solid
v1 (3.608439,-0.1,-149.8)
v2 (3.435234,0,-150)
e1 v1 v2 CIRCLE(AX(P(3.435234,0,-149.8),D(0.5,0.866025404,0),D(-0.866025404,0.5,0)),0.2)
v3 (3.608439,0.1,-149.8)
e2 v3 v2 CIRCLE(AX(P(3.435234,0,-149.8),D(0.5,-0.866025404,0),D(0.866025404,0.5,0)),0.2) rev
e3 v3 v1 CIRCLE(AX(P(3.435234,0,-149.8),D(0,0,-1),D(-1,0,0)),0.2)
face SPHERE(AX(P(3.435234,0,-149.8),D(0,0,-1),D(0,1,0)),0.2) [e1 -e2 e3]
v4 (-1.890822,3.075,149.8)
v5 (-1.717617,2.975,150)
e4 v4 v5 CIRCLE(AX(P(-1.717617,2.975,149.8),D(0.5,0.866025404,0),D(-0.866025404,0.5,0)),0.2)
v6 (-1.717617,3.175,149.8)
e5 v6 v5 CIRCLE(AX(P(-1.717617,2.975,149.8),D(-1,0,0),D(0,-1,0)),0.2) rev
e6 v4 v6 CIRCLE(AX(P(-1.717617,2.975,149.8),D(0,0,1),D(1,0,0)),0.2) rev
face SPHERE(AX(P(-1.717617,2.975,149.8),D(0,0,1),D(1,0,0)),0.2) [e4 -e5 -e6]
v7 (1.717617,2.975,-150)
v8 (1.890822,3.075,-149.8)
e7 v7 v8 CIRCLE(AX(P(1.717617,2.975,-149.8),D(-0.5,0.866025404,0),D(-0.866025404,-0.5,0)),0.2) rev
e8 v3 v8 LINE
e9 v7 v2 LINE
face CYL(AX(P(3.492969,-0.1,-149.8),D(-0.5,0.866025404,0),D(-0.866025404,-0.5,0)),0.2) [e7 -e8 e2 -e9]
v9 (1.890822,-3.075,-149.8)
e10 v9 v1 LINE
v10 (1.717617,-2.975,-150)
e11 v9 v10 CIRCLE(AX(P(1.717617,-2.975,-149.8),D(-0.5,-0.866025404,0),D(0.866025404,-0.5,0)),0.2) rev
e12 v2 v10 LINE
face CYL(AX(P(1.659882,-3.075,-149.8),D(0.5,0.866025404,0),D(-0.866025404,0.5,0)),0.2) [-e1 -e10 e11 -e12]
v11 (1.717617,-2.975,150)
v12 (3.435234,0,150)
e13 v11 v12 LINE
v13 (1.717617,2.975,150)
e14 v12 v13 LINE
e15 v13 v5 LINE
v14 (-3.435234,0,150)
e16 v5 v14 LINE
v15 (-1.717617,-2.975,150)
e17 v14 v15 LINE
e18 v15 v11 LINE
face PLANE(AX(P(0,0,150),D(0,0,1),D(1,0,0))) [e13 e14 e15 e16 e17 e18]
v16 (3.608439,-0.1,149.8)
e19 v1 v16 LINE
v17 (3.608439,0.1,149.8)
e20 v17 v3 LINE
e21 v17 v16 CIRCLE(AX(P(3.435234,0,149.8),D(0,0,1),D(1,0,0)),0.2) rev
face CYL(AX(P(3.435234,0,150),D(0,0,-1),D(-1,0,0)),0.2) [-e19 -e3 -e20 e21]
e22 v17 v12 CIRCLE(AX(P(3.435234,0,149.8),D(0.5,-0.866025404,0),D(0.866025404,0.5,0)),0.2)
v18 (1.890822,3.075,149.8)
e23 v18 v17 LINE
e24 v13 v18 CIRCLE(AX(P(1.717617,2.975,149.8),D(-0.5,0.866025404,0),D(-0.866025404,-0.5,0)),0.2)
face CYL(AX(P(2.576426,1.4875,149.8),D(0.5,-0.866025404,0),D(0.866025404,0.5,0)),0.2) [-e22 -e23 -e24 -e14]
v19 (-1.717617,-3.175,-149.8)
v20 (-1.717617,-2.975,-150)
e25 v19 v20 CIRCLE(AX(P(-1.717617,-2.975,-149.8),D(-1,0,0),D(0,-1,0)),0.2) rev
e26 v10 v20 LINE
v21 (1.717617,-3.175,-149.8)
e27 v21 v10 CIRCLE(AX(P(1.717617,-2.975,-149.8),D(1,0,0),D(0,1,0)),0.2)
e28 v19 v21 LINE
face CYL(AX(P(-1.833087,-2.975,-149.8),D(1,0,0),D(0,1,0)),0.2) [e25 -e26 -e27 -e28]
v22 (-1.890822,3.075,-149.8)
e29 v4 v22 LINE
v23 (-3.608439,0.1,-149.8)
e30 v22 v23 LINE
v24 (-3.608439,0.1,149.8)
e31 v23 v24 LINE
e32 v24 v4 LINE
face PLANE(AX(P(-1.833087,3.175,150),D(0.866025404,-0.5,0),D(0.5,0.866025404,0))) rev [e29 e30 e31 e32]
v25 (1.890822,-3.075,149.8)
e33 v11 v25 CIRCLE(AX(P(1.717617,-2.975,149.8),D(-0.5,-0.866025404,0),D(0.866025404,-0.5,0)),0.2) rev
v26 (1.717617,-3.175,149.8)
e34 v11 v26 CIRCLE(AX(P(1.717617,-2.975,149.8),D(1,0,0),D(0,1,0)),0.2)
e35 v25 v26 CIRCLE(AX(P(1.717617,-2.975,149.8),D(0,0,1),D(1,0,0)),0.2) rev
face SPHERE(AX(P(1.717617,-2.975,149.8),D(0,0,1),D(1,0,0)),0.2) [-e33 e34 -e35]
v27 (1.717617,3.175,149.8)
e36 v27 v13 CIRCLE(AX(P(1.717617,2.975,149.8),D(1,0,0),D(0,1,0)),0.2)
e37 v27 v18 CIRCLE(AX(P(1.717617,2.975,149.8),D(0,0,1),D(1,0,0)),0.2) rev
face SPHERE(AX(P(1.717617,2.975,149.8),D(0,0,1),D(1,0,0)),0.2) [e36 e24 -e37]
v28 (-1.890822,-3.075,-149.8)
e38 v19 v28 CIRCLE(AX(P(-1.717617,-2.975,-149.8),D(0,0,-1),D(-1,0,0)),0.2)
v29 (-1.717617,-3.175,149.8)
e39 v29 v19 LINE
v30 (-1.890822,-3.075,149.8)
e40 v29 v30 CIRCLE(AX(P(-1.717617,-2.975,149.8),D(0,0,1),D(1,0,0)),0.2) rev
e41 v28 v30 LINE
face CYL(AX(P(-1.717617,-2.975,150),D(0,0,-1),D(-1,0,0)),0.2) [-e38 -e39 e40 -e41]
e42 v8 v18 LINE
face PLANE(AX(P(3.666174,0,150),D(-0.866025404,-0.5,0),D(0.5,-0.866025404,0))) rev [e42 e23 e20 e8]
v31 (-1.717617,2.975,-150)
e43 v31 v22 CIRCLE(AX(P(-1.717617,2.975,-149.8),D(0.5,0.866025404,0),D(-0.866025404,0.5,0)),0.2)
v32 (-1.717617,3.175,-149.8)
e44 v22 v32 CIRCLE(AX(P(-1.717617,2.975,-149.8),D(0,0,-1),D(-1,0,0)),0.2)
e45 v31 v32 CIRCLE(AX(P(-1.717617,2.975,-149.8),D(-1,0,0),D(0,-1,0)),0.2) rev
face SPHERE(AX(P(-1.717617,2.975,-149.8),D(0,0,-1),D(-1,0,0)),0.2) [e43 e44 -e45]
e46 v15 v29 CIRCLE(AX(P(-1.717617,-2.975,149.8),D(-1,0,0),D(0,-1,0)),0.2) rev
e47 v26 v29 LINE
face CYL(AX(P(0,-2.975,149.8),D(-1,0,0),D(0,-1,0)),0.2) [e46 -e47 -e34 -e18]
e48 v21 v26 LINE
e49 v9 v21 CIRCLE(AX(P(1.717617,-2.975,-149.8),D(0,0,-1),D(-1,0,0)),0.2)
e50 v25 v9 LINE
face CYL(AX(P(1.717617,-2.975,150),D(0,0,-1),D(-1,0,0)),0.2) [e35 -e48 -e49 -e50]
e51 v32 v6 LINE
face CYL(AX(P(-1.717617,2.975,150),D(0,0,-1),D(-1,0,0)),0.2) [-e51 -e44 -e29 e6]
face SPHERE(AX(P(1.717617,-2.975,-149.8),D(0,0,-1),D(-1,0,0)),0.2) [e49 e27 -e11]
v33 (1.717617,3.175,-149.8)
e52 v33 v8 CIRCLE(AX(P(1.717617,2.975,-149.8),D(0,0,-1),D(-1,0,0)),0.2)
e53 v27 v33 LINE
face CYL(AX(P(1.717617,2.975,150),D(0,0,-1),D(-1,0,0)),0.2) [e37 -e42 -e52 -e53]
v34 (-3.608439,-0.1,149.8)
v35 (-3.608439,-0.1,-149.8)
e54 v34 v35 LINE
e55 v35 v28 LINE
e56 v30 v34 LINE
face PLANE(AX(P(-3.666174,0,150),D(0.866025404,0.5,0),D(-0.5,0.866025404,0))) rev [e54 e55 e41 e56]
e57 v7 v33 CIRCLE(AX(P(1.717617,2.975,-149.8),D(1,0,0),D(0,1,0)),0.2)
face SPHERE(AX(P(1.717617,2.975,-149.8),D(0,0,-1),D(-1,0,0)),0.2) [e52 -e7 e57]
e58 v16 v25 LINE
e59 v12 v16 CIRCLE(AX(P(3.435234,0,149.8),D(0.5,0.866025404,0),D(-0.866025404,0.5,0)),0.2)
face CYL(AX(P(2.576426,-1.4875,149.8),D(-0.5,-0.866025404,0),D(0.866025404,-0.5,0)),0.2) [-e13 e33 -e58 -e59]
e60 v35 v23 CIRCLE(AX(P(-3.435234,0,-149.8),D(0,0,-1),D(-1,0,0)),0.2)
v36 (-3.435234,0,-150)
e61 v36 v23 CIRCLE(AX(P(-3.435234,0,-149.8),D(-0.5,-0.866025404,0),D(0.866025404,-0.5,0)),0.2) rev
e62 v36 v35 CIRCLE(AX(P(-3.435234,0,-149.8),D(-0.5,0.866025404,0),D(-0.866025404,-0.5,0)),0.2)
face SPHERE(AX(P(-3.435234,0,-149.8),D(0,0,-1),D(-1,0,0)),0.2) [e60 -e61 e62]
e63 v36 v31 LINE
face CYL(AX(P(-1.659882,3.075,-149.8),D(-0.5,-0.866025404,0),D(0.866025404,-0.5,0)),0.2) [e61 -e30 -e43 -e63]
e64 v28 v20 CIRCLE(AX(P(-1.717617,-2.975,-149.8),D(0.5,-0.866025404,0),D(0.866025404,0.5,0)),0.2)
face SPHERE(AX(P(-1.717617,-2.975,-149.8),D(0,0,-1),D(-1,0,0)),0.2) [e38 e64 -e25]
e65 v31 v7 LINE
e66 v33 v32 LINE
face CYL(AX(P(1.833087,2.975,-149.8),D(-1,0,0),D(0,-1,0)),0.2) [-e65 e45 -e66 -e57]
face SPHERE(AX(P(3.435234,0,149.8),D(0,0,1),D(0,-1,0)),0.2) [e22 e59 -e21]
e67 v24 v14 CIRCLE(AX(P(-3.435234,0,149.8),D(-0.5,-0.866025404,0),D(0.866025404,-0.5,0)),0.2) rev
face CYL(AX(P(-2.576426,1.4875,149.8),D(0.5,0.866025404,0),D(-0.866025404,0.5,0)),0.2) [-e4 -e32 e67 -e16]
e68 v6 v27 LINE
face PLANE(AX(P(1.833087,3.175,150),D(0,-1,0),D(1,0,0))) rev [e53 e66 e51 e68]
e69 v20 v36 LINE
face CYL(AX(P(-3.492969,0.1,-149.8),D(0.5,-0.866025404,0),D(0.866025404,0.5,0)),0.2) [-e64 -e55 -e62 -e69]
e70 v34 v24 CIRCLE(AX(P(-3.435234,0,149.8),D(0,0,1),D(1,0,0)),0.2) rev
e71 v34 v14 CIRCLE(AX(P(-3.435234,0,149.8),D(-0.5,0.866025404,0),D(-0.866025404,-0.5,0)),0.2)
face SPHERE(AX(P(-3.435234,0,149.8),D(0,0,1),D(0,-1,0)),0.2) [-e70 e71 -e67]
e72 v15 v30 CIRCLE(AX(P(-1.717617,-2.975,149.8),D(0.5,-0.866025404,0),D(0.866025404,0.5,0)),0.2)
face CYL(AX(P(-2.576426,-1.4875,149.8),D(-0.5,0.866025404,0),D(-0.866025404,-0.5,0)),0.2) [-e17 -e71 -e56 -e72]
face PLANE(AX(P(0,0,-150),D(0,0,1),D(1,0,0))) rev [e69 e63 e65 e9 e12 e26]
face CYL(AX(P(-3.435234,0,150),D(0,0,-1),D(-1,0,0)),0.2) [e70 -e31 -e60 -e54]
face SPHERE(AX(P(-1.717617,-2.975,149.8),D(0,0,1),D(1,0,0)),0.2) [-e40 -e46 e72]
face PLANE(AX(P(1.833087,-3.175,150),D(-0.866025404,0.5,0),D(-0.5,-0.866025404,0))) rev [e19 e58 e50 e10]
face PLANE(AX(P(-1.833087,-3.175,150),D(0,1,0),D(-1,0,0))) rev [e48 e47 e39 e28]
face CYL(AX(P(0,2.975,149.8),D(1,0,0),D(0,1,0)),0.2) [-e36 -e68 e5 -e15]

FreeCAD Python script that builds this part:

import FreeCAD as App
import Part
import Sketcher
Q = App.Units.Quantity


def add_polygon(sketch, points):
    """Adds a closed chain of lines whose ends are joined by coincident constraints."""
    first, n = sketch.GeometryCount, len(points)
    for a, b in zip(points, points[1:] + points[:1]):
        sketch.addGeometry(Part.LineSegment(App.Vector(*a, 0), App.Vector(*b, 0)), False)
    for i in range(n):
        sketch.addConstraint(Sketcher.Constraint("Coincident", first + i, 2, first + (i + 1) % n, 1))

doc = App.newDocument("Part")
body = doc.addObject("PartDesign::Body", "Body")

# Sketch on XY plane
sketch1 = doc.addObject("Sketcher::SketchObject", "Sketch")
body.addObject(sketch1)
sketch1.AttachmentSupport = (doc.XY_Plane, [""])
sketch1.MapMode = "FlatFace"
add_polygon(sketch1, [(3.666174, 0), (1.833087, 3.175), (-1.833087, 3.175), (-3.666174, 0), (-1.833087, -3.175), (1.833087, -3.175)])  # lines 0-5
sketch1.addConstraint(Sketcher.Constraint("Horizontal", 1))
sketch1.addConstraint(Sketcher.Constraint("Horizontal", 4))
sketch1.addConstraint(Sketcher.Constraint("Symmetric", 0, 2, 3, 2, -1, 1))
sketch1.addConstraint(Sketcher.Constraint("Symmetric", 2, 2, 5, 2, -1, 1))
sketch1.addConstraint(Sketcher.Constraint("PointOnObject", 2, 2, -1))
sketch1.addConstraint(Sketcher.Constraint("Parallel", 2, 5))
sketch1.addConstraint(Sketcher.Constraint("Vertical", 1, 2, 3, 2))
sketch1.addConstraint(Sketcher.Constraint("Angle", 0, Q("120 deg")))
sketch1.addConstraint(Sketcher.Constraint("DistanceY", 3, 2, 1, 2, Q("6.35 mm")))
sketch1.addConstraint(Sketcher.Constraint("DistanceX", 1, 2, 1, 1, Q("3.666174 mm")))
pad1 = doc.addObject("PartDesign::Pad", "Pad")
body.addObject(pad1)
pad1.Profile = sketch1
pad1.Length = 300
pad1.Midplane = True
doc.recompute()

fillet = doc.addObject("PartDesign::Fillet", "Fillet")
body.addObject(fillet)
fillet.Base = (pad1, ["Edge1"])
fillet.UseAllEdges = True
fillet.Radius = 0.2

doc.recompute()
